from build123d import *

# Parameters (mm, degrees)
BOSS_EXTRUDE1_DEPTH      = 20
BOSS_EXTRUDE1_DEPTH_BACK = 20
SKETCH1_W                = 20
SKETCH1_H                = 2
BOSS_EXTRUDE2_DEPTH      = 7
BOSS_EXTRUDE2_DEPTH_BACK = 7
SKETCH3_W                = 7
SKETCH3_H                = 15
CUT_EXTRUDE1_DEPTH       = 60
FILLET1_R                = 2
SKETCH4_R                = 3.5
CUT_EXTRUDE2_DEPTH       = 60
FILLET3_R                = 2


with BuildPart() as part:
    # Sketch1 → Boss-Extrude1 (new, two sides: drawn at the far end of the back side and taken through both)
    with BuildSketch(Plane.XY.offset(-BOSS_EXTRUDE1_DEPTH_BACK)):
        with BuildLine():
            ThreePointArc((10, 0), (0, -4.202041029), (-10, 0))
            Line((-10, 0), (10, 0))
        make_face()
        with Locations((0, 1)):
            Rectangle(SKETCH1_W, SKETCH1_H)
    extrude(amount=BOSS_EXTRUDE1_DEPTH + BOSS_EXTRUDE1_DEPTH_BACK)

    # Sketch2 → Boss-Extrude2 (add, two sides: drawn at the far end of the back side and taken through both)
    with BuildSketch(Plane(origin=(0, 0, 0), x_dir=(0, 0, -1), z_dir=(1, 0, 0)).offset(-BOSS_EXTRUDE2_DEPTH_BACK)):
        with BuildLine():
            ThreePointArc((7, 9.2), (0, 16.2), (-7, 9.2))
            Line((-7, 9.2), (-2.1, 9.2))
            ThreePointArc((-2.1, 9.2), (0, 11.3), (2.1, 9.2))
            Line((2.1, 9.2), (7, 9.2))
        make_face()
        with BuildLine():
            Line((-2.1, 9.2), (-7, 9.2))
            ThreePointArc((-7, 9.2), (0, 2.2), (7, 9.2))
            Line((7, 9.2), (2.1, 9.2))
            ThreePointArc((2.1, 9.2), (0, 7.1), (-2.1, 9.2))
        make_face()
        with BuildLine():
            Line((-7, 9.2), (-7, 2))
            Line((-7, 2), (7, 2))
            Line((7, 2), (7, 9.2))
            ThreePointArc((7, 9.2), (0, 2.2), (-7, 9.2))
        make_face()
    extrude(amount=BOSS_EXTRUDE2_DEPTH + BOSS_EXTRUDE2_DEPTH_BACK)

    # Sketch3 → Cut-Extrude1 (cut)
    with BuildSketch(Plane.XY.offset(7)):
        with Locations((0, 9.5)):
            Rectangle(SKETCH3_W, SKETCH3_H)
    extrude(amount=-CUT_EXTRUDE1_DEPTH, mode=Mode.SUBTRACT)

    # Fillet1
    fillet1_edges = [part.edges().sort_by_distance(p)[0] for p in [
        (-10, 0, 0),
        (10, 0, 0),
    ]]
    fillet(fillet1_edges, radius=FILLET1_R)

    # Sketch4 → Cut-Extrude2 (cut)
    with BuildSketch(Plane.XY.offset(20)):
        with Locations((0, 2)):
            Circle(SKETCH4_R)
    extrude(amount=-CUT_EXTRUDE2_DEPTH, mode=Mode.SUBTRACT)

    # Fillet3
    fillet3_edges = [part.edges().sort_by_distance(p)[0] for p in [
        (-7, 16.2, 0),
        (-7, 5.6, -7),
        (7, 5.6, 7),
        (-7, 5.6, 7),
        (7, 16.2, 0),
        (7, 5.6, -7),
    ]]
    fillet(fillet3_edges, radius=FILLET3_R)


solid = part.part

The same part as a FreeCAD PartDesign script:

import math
import FreeCAD as App
import Part
import Sketcher
from FreeCAD import Vector


def edges_at(feature, points):
    """Names of the edges that pass closest to the given points."""
    edges = feature.Shape.Edges
    near = lambda p: min(range(len(edges)), key=lambda i: edges[i].distToShape(Part.Vertex(*p))[0])
    return sorted({f"Edge{near(p) + 1}" for p in points})


def add_polygon(sketch, points):
    """Adds a closed chain of lines whose ends are joined by coincident constraints."""
    first, n = sketch.GeometryCount, len(points)
    for a, b in zip(points, points[1:] + points[:1]):
        sketch.addGeometry(Part.LineSegment(App.Vector(*a, 0), App.Vector(*b, 0)), False)
    for i in range(n):
        sketch.addConstraint(Sketcher.Constraint("Coincident", first + i, 2, first + (i + 1) % n, 1))

doc = App.newDocument("Part")
body = doc.addObject("PartDesign::Body", "Body")

# Sketch on XY plane
sketch1 = body.newObject("Sketcher::SketchObject", "Sketch")
sketch1.AttachmentSupport = (doc.getObject("XY_Plane"), [""])
sketch1.MapMode = "FlatFace"
sketch1.addGeometry([
    Part.ArcOfCircle(Part.Circle(Vector(0, 9.797959, 0), Vector(0, 0, 1), 14), math.radians(-135.584691), math.radians(-44.415309)),
    Part.LineSegment(Vector(10, 0, 0), Vector(10, 2, 0)),
    Part.LineSegment(Vector(10, 2, 0), Vector(-10, 2, 0)),
    Part.LineSegment(Vector(-10, 2, 0), Vector(-10, 0, 0)),
], False)
sketch1.addConstraint([
    Sketcher.Constraint("Coincident", 0, 2, 1, 1),
    Sketcher.Constraint("Coincident", 1, 2, 2, 1),
    Sketcher.Constraint("Coincident", 2, 2, 3, 1),
    Sketcher.Constraint("Coincident", 3, 2, 0, 1),
    Sketcher.Constraint("Vertical", 1),
    Sketcher.Constraint("Horizontal", 2),
    Sketcher.Constraint("Vertical", 3),
    Sketcher.Constraint("Symmetric", 0, 2, 3, 2, -1, 1),
    Sketcher.Constraint("PointOnObject", 0, 3, -2),
    Sketcher.Constraint("Radius", 0, 14.0),
    Sketcher.Constraint("DistanceX", 2, 2, 2, 1, 20.0),
    Sketcher.Constraint("DistanceY", 1, 1, 1, 2, 2.0),
])
pad1 = body.newObject("PartDesign::Pad", "Pad")
pad1.Profile = sketch1
pad1.Type = "TwoLengths"
pad1.Length = 20
pad1.Length2 = 20

# Sketch on YZ plane
sketch2 = body.newObject("Sketcher::SketchObject", "Sketch001")
sketch2.AttachmentSupport = (doc.getObject("YZ_Plane"), [""])
sketch2.MapMode = "FlatFace"
sketch2.addGeometry([
    Part.ArcOfCircle(Part.Circle(Vector(9.2, 0, 0), Vector(0, 0, 1), 7), math.radians(-90), math.radians(90)),  # 0
    Part.LineSegment(Vector(9.2, 7, 0), Vector(2, 7, 0)),  # 1
    Part.LineSegment(Vector(2, 7, 0), Vector(2, -7, 0)),  # 2
    Part.LineSegment(Vector(2, -7, 0), Vector(9.2, -7, 0)),  # 3
    Part.Circle(Vector(9.2, 0, 0), Vector(0, 0, 1), 2.1),  # 4
], False)
sketch2.addConstraint([
    Sketcher.Constraint("Tangent", 0, 2, 1, 1),
    Sketcher.Constraint("Coincident", 1, 2, 2, 1),
    Sketcher.Constraint("Coincident", 2, 2, 3, 1),
    Sketcher.Constraint("Tangent", 3, 2, 0, 1),
    Sketcher.Constraint("Horizontal", 1),
    Sketcher.Constraint("Vertical", 2),
    Sketcher.Constraint("Horizontal", 3),
    Sketcher.Constraint("Coincident", 4, 3, 0, 3),
    Sketcher.Constraint("PointOnObject", 0, 3, -1),
    Sketcher.Constraint("Radius", 0, 7.0),
    Sketcher.Constraint("Diameter", 4, 4.2),
    Sketcher.Constraint("DistanceX", 1, 2, 1, 1, 7.2),
    Sketcher.Constraint("DistanceX", -1, 1, 1, 2, 2.0),
])
pad2 = body.newObject("PartDesign::Pad", "Pad001")
pad2.Profile = sketch2
pad2.Type = "TwoLengths"
pad2.Length = 7
pad2.Length2 = 7

# Sketch on XY plane
sketch3 = body.newObject("Sketcher::SketchObject", "Sketch002")
sketch3.AttachmentSupport = (doc.getObject("XY_Plane"), [""])
sketch3.MapMode = "FlatFace"
sketch3.AttachmentOffset = App.Placement(Vector(0, 0, 7), App.Rotation())
add_polygon(sketch3, [(-3.5, 17), (-3.5, 2), (3.5, 2), (3.5, 17)])  # lines 0-3
sketch3.addConstraint([
    Sketcher.Constraint("Vertical", 0),
    Sketcher.Constraint("Horizontal", 1),
    Sketcher.Constraint("Vertical", 2),
    Sketcher.Constraint("Horizontal", 3),
    Sketcher.Constraint("DistanceX", 1, 1, 1, 2, 7.0),
    Sketcher.Constraint("DistanceY", 0, 2, 0, 1, 15.0),
    Sketcher.Constraint("DistanceY", -1, 1, 0, 2, 2.0),
    Sketcher.Constraint("DistanceX", 0, 2, -1, 1, 3.5),
])
pocket1 = body.newObject("PartDesign::Pocket", "Pocket")
pocket1.Profile = sketch3
pocket1.Length = 60
doc.recompute()

fillet = body.newObject("PartDesign::Fillet", "Fillet")
fillet.Base = (pocket1, edges_at(pocket1, [(-10, 0, 0), (10, 0, 0)]))
fillet.Radius = 2

# Sketch on XY plane
sketch4 = body.newObject("Sketcher::SketchObject", "Sketch003")
sketch4.AttachmentSupport = (doc.getObject("XY_Plane"), [""])
sketch4.MapMode = "FlatFace"
sketch4.AttachmentOffset = App.Placement(Vector(0, 0, 20), App.Rotation())
sketch4.addGeometry(Part.Circle(Vector(0, 2, 0), Vector(0, 0, 1), 3.5), False)
sketch4.addConstraint([
    Sketcher.Constraint("PointOnObject", 0, 3, -2),
    Sketcher.Constraint("Diameter", 0, 7.0),
    Sketcher.Constraint("DistanceY", -1, 1, 0, 3, 2.0),
])
pocket2 = body.newObject("PartDesign::Pocket", "Pocket001")
pocket2.Profile = sketch4
pocket2.Length = 60
doc.recompute()

fillet2 = body.newObject("PartDesign::Fillet", "Fillet001")
fillet2.Base = (pocket2, edges_at(pocket2, [
    (-7, 16.2, 0),
    (-7, 5.6, -7),
    (7, 5.6, 7),
    (-7, 5.6, 7),
    (7, 16.2, 0),
    (7, 5.6, -7),
]))
fillet2.Radius = 2

doc.recompute()
